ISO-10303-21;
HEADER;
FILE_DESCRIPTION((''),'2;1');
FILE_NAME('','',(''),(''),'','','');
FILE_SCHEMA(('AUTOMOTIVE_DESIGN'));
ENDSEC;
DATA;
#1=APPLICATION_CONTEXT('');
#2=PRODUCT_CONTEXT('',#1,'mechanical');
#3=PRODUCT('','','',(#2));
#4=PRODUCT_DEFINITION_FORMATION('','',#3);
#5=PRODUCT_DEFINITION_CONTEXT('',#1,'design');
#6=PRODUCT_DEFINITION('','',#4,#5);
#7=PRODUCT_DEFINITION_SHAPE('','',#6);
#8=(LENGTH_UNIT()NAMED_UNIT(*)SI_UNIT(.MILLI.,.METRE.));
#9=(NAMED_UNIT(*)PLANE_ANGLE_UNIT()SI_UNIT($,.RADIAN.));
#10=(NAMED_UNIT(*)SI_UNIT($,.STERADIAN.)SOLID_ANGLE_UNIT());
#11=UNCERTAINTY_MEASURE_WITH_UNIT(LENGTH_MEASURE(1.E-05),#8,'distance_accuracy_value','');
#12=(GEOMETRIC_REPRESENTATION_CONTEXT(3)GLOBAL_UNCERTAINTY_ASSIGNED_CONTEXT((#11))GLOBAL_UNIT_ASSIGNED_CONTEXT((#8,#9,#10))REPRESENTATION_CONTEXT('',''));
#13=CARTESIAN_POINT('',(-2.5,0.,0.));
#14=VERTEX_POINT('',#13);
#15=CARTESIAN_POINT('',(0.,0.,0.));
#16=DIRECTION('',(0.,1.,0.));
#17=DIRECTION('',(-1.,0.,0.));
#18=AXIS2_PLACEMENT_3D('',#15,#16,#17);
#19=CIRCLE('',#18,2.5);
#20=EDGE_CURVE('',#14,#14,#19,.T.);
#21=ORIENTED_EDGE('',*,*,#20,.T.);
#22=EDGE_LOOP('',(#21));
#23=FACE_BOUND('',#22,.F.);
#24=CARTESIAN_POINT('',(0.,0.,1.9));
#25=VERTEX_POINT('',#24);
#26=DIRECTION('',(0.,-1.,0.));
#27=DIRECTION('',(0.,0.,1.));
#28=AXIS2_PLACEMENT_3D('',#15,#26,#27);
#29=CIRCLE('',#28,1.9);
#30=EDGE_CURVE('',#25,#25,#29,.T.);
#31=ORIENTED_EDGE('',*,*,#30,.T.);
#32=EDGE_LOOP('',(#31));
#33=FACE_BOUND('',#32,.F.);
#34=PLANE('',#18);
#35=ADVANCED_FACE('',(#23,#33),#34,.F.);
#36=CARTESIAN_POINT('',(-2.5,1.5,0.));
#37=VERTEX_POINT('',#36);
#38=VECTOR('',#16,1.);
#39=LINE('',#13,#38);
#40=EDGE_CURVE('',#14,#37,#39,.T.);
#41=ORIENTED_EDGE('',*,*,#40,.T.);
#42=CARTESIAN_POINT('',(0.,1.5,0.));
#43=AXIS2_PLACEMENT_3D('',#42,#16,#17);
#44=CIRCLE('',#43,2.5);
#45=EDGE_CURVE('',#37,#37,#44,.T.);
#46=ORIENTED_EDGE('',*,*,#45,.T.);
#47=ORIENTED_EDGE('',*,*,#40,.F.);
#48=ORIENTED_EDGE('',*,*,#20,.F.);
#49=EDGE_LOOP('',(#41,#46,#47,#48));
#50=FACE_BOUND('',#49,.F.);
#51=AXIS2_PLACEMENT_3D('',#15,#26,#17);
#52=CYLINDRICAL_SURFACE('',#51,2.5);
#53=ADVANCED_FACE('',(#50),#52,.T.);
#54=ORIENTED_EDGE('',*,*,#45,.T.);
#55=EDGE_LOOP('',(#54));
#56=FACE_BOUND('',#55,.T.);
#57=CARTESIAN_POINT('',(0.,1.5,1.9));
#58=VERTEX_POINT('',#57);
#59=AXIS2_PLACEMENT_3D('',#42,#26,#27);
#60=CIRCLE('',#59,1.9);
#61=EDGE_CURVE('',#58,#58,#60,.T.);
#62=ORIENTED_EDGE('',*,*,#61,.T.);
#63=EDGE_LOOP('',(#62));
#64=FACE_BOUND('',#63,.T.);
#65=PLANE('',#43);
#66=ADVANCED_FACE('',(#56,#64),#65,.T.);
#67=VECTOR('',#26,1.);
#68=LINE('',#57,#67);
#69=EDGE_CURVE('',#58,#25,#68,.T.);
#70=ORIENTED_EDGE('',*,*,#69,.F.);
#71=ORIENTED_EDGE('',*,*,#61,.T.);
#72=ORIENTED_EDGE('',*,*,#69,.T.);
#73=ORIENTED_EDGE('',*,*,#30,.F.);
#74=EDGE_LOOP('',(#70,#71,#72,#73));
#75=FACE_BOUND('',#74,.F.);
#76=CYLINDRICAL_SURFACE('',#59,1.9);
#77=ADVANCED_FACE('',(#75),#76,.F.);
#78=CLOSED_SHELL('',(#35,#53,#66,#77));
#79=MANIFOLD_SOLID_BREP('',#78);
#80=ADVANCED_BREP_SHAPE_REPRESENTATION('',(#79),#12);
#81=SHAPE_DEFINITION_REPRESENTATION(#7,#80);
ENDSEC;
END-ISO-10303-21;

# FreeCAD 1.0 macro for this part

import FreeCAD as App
import Part
import Sketcher
from FreeCAD import Vector
Q = App.Units.Quantity

doc = App.newDocument("Part")
params = doc.addObject("Spreadsheet::Sheet", "Params")
for row, (alias, value) in enumerate([
    ("sketch1_diameter", "5 mm"),
    ("pad1_length", "1.5 mm"),
    ("sketch2_diameter", "3.8 mm"),
    ("hole_diameter", "3.8 mm"),
    ("hole_cbore_diameter", "11 mm"),
    ("hole_cbore_depth", "0 mm"),
], start=1):
    params.set(f"A{row}", alias)
    params.set(f"B{row}", "=" + value)
    params.setAlias(f"B{row}", alias)

body = doc.addObject("PartDesign::Body", "Body")

sketch1 = body.newObject("Sketcher::SketchObject", "Sketch")
sketch1.AttachmentSupport = (doc.getObject("XZ_Plane"), [""])
sketch1.MapMode = "FlatFace"
sketch1.addGeometry(Part.Circle(Vector(0, 0, 0), Vector(0, 0, 1), 2.5), False)
sketch1.addConstraint([
    Sketcher.Constraint("Coincident", 0, 3, -1, 1),
    Sketcher.Constraint("Diameter", 0, Q("5 mm")),
])
sketch1.setExpression("Constraints[1]", "Params.sketch1_diameter")
pad1 = body.newObject("PartDesign::Pad", "Pad")
pad1.Profile = sketch1
pad1.setExpression("Length", "Params.pad1_length")
pad1.Reversed = True

sketch2 = body.newObject("Sketcher::SketchObject", "Sketch001")
sketch2.AttachmentSupport = (doc.getObject("XZ_Plane"), [""])
sketch2.MapMode = "FlatFace"
sketch2.AttachmentOffset = App.Placement(Vector(0, 0, -1.5), App.Rotation())
sketch2.addGeometry(Part.Circle(Vector(0, 0, 0), Vector(0, 0, 1), 1.9), False)
sketch2.addConstraint([
    Sketcher.Constraint("Coincident", 0, 3, -1, 1),
    Sketcher.Constraint("Diameter", 0, Q("3.8 mm")),
])
sketch2.setExpression("Constraints[1]", "Params.sketch2_diameter")
doc.recompute()
hole = body.newObject("PartDesign::Hole", "Hole")
hole.Profile = sketch2
hole.ThreadType = "None"
hole.setExpression("Diameter", "Params.hole_diameter")
hole.DepthType = "ThroughAll"
hole.HoleCutType = "Counterbore"
hole.setExpression("HoleCutDiameter", "Params.hole_cbore_diameter")
hole.setExpression("HoleCutDepth", "Params.hole_cbore_depth")
hole.Reversed = True

doc.recompute()
